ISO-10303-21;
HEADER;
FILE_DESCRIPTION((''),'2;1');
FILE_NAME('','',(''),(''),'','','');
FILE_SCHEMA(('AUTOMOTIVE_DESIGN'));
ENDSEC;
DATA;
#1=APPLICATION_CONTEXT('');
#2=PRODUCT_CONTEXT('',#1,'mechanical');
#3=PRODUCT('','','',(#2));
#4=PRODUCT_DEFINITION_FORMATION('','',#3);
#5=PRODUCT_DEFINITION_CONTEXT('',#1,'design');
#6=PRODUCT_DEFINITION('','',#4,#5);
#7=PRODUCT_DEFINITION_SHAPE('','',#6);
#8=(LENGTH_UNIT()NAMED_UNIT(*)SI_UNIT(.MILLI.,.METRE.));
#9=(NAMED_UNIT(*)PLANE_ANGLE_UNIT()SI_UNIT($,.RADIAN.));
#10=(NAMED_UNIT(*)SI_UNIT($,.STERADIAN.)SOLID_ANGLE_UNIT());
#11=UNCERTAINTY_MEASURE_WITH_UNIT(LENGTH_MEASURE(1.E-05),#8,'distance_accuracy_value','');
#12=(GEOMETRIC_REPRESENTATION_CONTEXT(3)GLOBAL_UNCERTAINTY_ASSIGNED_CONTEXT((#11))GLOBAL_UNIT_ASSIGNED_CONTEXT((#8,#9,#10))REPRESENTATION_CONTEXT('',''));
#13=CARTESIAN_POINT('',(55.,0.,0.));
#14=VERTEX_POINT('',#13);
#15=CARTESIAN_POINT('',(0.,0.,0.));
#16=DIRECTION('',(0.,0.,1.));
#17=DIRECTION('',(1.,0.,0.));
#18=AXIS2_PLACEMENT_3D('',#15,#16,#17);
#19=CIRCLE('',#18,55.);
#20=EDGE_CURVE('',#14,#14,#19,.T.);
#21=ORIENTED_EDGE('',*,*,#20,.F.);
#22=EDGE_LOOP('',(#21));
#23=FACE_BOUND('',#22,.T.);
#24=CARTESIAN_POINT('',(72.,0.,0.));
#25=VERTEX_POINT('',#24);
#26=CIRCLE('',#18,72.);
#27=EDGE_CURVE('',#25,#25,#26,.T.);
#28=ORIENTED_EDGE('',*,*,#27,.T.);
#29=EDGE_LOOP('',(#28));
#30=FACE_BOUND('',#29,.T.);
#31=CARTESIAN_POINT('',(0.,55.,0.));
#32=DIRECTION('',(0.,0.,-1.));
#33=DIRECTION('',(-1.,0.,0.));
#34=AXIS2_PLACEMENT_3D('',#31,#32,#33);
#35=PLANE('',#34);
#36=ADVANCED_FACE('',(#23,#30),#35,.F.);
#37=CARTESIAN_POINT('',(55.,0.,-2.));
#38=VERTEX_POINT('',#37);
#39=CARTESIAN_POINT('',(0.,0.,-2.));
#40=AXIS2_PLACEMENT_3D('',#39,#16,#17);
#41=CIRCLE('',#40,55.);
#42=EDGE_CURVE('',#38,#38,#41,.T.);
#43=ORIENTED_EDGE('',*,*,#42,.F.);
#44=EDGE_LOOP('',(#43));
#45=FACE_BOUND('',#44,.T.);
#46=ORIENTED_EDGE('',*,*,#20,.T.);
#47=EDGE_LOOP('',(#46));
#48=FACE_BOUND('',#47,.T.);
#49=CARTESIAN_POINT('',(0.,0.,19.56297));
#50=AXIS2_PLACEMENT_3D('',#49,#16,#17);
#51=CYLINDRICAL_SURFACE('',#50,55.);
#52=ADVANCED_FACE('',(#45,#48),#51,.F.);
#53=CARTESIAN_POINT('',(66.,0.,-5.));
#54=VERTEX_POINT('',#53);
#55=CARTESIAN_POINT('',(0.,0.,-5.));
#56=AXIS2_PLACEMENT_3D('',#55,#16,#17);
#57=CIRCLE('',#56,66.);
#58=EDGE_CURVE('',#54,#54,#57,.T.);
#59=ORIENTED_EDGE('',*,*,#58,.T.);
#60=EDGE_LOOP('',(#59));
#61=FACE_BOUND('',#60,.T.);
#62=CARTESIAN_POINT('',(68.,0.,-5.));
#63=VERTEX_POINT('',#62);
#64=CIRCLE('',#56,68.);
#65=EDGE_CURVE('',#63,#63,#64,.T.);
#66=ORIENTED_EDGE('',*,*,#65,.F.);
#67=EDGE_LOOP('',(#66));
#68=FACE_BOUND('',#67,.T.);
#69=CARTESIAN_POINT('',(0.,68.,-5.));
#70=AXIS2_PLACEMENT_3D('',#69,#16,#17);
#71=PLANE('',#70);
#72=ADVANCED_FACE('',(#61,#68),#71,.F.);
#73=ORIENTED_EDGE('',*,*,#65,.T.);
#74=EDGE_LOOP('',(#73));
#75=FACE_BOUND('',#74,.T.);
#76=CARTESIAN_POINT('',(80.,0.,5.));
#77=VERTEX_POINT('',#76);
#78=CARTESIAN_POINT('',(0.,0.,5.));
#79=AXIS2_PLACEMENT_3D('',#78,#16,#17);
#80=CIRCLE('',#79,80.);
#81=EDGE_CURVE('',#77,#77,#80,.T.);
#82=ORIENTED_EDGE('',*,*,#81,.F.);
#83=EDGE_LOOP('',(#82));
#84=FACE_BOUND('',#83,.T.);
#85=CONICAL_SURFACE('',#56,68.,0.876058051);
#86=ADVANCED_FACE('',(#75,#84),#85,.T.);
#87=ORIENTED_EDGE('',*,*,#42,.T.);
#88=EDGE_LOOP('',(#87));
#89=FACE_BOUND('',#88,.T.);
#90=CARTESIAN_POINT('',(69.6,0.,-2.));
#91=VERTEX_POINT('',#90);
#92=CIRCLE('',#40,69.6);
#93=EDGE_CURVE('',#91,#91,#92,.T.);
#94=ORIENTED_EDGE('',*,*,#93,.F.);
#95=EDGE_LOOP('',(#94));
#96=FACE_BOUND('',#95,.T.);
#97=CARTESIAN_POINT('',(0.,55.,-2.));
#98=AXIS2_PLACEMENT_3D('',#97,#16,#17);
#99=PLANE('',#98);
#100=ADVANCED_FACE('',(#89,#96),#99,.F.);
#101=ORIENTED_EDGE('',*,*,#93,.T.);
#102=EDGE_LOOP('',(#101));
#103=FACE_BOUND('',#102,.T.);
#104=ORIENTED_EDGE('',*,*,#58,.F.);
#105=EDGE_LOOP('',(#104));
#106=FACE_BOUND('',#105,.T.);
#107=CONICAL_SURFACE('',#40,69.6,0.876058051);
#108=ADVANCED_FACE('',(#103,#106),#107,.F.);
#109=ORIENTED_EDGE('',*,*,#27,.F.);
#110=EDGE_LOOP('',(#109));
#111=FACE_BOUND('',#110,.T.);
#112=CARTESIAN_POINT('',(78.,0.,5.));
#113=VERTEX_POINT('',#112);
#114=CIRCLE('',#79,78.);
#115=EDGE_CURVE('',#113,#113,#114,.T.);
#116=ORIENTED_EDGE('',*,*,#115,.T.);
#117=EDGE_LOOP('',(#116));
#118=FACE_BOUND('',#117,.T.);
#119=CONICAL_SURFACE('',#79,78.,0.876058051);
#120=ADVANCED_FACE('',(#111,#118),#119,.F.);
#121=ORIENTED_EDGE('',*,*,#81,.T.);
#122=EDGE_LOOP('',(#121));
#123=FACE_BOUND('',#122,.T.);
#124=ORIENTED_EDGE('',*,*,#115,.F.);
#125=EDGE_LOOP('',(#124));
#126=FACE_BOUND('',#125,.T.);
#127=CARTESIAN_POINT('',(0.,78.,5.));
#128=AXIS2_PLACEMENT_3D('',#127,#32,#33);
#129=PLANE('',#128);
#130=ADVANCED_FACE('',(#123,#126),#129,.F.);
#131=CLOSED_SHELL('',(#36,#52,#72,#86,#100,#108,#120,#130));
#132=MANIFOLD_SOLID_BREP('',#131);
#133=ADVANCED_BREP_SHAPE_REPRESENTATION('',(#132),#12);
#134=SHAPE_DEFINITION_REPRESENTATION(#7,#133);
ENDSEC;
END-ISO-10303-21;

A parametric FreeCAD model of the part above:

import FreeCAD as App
import Part
import Sketcher

V = App.Vector


def add_polygon(sketch, points):
    """Adds a closed chain of lines whose ends are joined by coincident constraints."""
    first, n = sketch.GeometryCount, len(points)
    for a, b in zip(points, points[1:] + points[:1]):
        sketch.addGeometry(Part.LineSegment(App.Vector(*a, 0), App.Vector(*b, 0)), False)
    for i in range(n):
        sketch.addConstraint(Sketcher.Constraint("Coincident", first + i, 2, first + (i + 1) % n, 1))

doc = App.newDocument("Part")
body = doc.addObject("PartDesign::Body", "Body")

sketch1 = body.newObject("Sketcher::SketchObject", "Sketch")
sketch1.AttachmentSupport = (doc.getObject("YZ_Plane"), [""])
sketch1.MapMode = "FlatFace"
add_polygon(sketch1, [(78, 5), (72, 0), (55, 0), (55, -2), (69.6, -2), (66, -5), (68, -5), (80, 5)])
sketch1.addConstraint(Sketcher.Constraint("Horizontal", 1))
sketch1.addConstraint(Sketcher.Constraint("Vertical", 2))
sketch1.addConstraint(Sketcher.Constraint("Horizontal", 3))
sketch1.addConstraint(Sketcher.Constraint("Horizontal", 5))
sketch1.addConstraint(Sketcher.Constraint("Horizontal", 7))
sketch1.addConstraint(Sketcher.Constraint("PointOnObject", 0, 2, -1))
sketch1.addConstraint(Sketcher.Constraint("Parallel", 0, 4))
sketch1.addConstraint(Sketcher.Constraint("Parallel", 4, 6))
sketch1.addConstraint(Sketcher.Constraint("Equal", 5, 7))
sketch1.addConstraint(Sketcher.Constraint("Equal", 7, 2))
sketch1.addConstraint(Sketcher.Constraint("DistanceX", 1, 2, 1, 1, 17.0))
sketch1.addConstraint(Sketcher.Constraint("DistanceX", 5, 1, 5, 2, 2.0))
sketch1.addConstraint(Sketcher.Constraint("DistanceX", 3, 1, 3, 2, 14.6))
sketch1.addConstraint(Sketcher.Constraint("DistanceX", -1, 1, 0, 2, 72.0))
sketch1.addConstraint(Sketcher.Constraint("DistanceX", -1, 1, 4, 2, 66.0))
sketch1.addConstraint(Sketcher.Constraint("DistanceX", -1, 1, 6, 2, 80.0))
revolution = body.newObject("PartDesign::Revolution", "Revolution")
revolution.Profile = sketch1
revolution.ReferenceAxis = (sketch1, ["V_Axis"])
revolution.Angle = 360

doc.recompute()
